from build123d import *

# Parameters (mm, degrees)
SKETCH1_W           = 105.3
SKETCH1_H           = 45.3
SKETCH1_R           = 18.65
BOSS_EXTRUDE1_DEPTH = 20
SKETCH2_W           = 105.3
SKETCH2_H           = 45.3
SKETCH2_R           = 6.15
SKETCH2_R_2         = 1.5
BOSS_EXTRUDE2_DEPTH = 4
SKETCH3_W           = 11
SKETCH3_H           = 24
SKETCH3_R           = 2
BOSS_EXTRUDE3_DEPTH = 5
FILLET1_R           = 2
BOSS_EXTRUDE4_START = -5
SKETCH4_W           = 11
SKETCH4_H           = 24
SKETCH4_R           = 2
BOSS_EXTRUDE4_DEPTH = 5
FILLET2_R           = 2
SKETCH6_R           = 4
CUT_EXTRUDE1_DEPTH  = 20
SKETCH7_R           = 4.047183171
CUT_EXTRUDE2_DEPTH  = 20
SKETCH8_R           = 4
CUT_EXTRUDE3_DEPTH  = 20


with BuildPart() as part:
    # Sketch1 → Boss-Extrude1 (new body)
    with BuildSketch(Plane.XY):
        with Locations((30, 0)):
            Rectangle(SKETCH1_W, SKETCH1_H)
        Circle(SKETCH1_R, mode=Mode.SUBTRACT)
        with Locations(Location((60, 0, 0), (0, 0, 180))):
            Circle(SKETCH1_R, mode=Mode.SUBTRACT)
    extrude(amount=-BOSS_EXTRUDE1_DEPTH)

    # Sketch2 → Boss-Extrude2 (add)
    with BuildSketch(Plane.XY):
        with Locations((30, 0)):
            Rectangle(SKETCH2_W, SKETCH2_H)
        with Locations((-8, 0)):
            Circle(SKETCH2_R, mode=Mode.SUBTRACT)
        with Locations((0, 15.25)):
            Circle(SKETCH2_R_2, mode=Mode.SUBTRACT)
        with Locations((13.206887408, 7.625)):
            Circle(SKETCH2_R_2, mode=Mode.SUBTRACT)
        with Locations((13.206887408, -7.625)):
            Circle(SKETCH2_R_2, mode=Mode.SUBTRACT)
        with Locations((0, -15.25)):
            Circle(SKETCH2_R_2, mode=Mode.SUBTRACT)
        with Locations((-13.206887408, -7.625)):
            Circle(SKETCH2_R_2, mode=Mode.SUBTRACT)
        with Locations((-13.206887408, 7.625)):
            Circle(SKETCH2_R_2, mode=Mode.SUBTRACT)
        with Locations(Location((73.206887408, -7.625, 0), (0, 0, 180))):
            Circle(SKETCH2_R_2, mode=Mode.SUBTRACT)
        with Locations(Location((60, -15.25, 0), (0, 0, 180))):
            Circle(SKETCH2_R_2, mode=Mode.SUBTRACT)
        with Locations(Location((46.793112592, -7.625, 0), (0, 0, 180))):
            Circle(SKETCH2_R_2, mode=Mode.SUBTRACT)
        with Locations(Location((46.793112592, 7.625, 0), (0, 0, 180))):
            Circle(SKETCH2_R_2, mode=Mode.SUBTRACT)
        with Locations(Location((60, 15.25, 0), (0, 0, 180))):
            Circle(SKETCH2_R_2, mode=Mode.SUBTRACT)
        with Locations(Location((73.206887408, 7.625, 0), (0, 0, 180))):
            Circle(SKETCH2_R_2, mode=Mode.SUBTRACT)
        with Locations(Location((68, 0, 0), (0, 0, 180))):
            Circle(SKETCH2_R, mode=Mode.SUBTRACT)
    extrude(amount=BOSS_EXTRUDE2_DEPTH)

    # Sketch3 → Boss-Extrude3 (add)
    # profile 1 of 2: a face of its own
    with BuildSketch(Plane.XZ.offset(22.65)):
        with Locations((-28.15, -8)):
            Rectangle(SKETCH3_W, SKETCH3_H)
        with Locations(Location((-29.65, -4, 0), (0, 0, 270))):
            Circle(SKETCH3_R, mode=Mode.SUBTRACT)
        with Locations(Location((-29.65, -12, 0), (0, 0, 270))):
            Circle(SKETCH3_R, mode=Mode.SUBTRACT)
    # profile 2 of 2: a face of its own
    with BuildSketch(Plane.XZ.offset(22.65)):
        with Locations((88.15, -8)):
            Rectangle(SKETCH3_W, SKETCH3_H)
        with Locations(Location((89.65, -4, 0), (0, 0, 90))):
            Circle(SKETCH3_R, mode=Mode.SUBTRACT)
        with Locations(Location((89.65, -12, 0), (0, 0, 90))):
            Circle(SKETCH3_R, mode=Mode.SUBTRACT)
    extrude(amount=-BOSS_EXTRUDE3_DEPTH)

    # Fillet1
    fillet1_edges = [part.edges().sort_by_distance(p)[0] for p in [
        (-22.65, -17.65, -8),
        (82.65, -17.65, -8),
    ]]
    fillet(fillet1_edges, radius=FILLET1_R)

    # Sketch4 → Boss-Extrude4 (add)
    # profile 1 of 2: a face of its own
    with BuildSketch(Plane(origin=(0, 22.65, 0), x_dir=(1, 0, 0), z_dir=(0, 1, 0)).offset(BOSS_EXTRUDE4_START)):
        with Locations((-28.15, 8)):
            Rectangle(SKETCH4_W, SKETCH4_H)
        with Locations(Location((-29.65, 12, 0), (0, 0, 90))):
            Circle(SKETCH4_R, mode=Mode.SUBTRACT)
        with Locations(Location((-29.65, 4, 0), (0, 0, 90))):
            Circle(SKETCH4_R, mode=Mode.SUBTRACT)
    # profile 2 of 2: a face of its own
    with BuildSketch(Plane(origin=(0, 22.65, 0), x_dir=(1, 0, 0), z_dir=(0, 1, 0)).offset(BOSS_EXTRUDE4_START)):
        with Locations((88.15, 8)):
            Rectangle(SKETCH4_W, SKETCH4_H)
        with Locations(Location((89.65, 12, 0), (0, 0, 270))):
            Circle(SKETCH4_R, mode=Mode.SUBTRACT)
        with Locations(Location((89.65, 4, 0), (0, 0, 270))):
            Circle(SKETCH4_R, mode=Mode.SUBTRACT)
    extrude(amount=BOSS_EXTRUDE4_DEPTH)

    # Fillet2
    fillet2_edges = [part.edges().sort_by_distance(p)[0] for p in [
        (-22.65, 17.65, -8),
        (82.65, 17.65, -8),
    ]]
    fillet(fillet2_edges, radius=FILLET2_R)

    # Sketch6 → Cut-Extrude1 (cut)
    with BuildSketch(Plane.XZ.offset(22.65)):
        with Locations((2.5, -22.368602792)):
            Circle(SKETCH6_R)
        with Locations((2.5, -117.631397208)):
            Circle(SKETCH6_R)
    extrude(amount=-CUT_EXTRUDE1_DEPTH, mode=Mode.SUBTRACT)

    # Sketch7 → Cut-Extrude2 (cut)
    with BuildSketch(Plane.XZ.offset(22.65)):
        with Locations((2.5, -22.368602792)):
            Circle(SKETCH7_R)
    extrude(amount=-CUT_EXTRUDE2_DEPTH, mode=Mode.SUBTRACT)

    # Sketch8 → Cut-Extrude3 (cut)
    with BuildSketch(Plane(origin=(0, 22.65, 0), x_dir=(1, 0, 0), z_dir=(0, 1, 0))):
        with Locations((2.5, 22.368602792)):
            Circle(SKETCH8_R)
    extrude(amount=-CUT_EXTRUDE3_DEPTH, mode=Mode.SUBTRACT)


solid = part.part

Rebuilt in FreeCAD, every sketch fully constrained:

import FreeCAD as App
import Part
import Sketcher
from FreeCAD import Vector
Q = App.Units.Quantity


def edges_at(feature, points):
    """Names of the edges that pass closest to the given points."""
    edges = feature.Shape.Edges
    near = lambda p: min(range(len(edges)), key=lambda i: edges[i].distToShape(Part.Vertex(*p))[0])
    return sorted({f"Edge{near(p) + 1}" for p in points})

doc = App.newDocument("Part")
params = doc.addObject("Spreadsheet::Sheet", "Params")
for row, (alias, value) in enumerate([
    ("sketch1_diameter", "37.3 mm"),
    ("sketch1_width", "105.3 mm"),
    ("sketch1_height", "45.3 mm"),
    ("pad1_length", "20 mm"),
    ("sketch2_diameter", "3 mm"),
    ("sketch2_diameter2", "12.3 mm"),
    ("sketch2_width", "105.3 mm"),
    ("sketch2_height", "45.3 mm"),
    ("pad2_length", "4 mm"),
    ("sketch3_diameter", "4 mm"),
    ("sketch3_width", "11 mm"),
    ("sketch3_height", "24 mm"),
    ("pad3_length", "5 mm"),
    ("fillet_radius", "2 mm"),
    ("sketch4_diameter", "4 mm"),
    ("sketch4_width", "11 mm"),
    ("sketch4_height", "24 mm"),
    ("pad4_length", "5 mm"),
    ("fillet2_radius", "2 mm"),
    ("sketch5_diameter", "8 mm"),
    ("pocket1_length", "20 mm"),
    ("pocket2_length", "20 mm"),
    ("sketch7_diameter", "8 mm"),
    ("pocket3_length", "20 mm"),
], start=1):
    params.set(f"A{row}", alias)
    params.set(f"B{row}", "=" + value)
    params.setAlias(f"B{row}", alias)

body = doc.addObject("PartDesign::Body", "Body")

sketch1 = doc.addObject("Sketcher::SketchObject", "Sketch")
body.addObject(sketch1)
sketch1.AttachmentSupport = (doc.XY_Plane, [""])
sketch1.MapMode = "FlatFace"
sketch1.addGeometry(Part.LineSegment(Vector(-22.65, 22.65, 0), Vector(-22.65, -22.65, 0)), False)
sketch1.addGeometry(Part.LineSegment(Vector(-22.65, -22.65, 0), Vector(82.65, -22.65, 0)), False)
sketch1.addGeometry(Part.LineSegment(Vector(82.65, -22.65, 0), Vector(82.65, 22.65, 0)), False)
sketch1.addGeometry(Part.LineSegment(Vector(82.65, 22.65, 0), Vector(-22.65, 22.65, 0)), False)
sketch1.addGeometry(Part.Circle(Vector(0, 0, 0), Vector(0, 0, 1), 18.65), False)
sketch1.addGeometry(Part.Circle(Vector(60, 0, 0), Vector(0, 0, 1), 18.65), False)
sketch1.addConstraint(Sketcher.Constraint("Coincident", 0, 2, 1, 1))
sketch1.addConstraint(Sketcher.Constraint("Coincident", 1, 2, 2, 1))
sketch1.addConstraint(Sketcher.Constraint("Coincident", 2, 2, 3, 1))
sketch1.addConstraint(Sketcher.Constraint("Coincident", 3, 2, 0, 1))
sketch1.addConstraint(Sketcher.Constraint("Vertical", 0))
sketch1.addConstraint(Sketcher.Constraint("Horizontal", 1))
sketch1.addConstraint(Sketcher.Constraint("Vertical", 2))
sketch1.addConstraint(Sketcher.Constraint("Horizontal", 3))
sketch1.addConstraint(Sketcher.Constraint("Coincident", 4, 3, -1, 1))
sketch1.addConstraint(Sketcher.Constraint("Equal", 4, 5))
sketch1.addConstraint(Sketcher.Constraint("PointOnObject", 5, 3, -1))
sketch1.addConstraint(Sketcher.Constraint("Diameter", 4, Q("37.3 mm")))
sketch1.addConstraint(Sketcher.Constraint("DistanceX", 1, 1, 1, 2, Q("105.3 mm")))
sketch1.addConstraint(Sketcher.Constraint("DistanceY", 0, 2, 0, 1, Q("45.3 mm")))
sketch1.addConstraint(Sketcher.Constraint("DistanceX", -1, 1, 5, 3, Q("60 mm")))
sketch1.addConstraint(Sketcher.Constraint("DistanceX", 0, 2, -1, 1, Q("22.65 mm")))
sketch1.addConstraint(Sketcher.Constraint("DistanceY", 0, 2, -1, 1, Q("22.65 mm")))
sketch1.setExpression("Constraints[11]", "Params.sketch1_diameter")
sketch1.setExpression("Constraints[12]", "Params.sketch1_width")
sketch1.setExpression("Constraints[13]", "Params.sketch1_height")
pad1 = doc.addObject("PartDesign::Pad", "Pad")
body.addObject(pad1)
pad1.Profile = sketch1
pad1.setExpression("Length", "Params.pad1_length")
pad1.Reversed = True

sketch2 = doc.addObject("Sketcher::SketchObject", "Sketch001")
body.addObject(sketch2)
sketch2.AttachmentSupport = (doc.XY_Plane, [""])
sketch2.MapMode = "FlatFace"
sketch2.addGeometry(Part.LineSegment(Vector(-22.65, 22.65, 0), Vector(-22.65, -22.65, 0)), False)
sketch2.addGeometry(Part.LineSegment(Vector(-22.65, -22.65, 0), Vector(82.65, -22.65, 0)), False)
sketch2.addGeometry(Part.LineSegment(Vector(82.65, -22.65, 0), Vector(82.65, 22.65, 0)), False)
sketch2.addGeometry(Part.LineSegment(Vector(82.65, 22.65, 0), Vector(-22.65, 22.65, 0)), False)
sketch2.addGeometry(Part.Circle(Vector(0, -15.25, 0), Vector(0, 0, 1), 1.5), False)
sketch2.addGeometry(Part.Circle(Vector(-13.206887, -7.625, 0), Vector(0, 0, 1), 1.5), False)
sketch2.addGeometry(Part.Circle(Vector(13.206887, -7.625, 0), Vector(0, 0, 1), 1.5), False)
sketch2.addGeometry(Part.Circle(Vector(60, -15.25, 0), Vector(0, 0, 1), 1.5), False)
sketch2.addGeometry(Part.Circle(Vector(46.793113, -7.625, 0), Vector(0, 0, 1), 1.5), False)
sketch2.addGeometry(Part.Circle(Vector(73.206887, -7.625, 0), Vector(0, 0, 1), 1.5), False)
sketch2.addGeometry(Part.Circle(Vector(-8, 0, 0), Vector(0, 0, 1), 6.15), False)
sketch2.addGeometry(Part.Circle(Vector(-13.206887, 7.625, 0), Vector(0, 0, 1), 1.5), False)
sketch2.addGeometry(Part.Circle(Vector(13.206887, 7.625, 0), Vector(0, 0, 1), 1.5), False)
sketch2.addGeometry(Part.Circle(Vector(0, 15.25, 0), Vector(0, 0, 1), 1.5), False)
sketch2.addGeometry(Part.Circle(Vector(46.793113, 7.625, 0), Vector(0, 0, 1), 1.5), False)
sketch2.addGeometry(Part.Circle(Vector(68, 0, 0), Vector(0, 0, 1), 6.15), False)
sketch2.addGeometry(Part.Circle(Vector(73.206887, 7.625, 0), Vector(0, 0, 1), 1.5), False)
sketch2.addGeometry(Part.Circle(Vector(60, 15.25, 0), Vector(0, 0, 1), 1.5), False)
sketch2.addConstraint(Sketcher.Constraint("Coincident", 0, 2, 1, 1))
sketch2.addConstraint(Sketcher.Constraint("Coincident", 1, 2, 2, 1))
sketch2.addConstraint(Sketcher.Constraint("Coincident", 2, 2, 3, 1))
sketch2.addConstraint(Sketcher.Constraint("Coincident", 3, 2, 0, 1))
sketch2.addConstraint(Sketcher.Constraint("Vertical", 0))
sketch2.addConstraint(Sketcher.Constraint("Horizontal", 1))
sketch2.addConstraint(Sketcher.Constraint("Vertical", 2))
sketch2.addConstraint(Sketcher.Constraint("Horizontal", 3))
sketch2.addConstraint(Sketcher.Constraint("Equal", 4, 5))
sketch2.addConstraint(Sketcher.Constraint("Equal", 5, 6))
sketch2.addConstraint(Sketcher.Constraint("Equal", 6, 7))
sketch2.addConstraint(Sketcher.Constraint("Equal", 7, 8))
sketch2.addConstraint(Sketcher.Constraint("Equal", 8, 9))
sketch2.addConstraint(Sketcher.Constraint("Equal", 9, 11))
sketch2.addConstraint(Sketcher.Constraint("Equal", 11, 12))
sketch2.addConstraint(Sketcher.Constraint("Equal", 12, 13))
sketch2.addConstraint(Sketcher.Constraint("Equal", 13, 14))
sketch2.addConstraint(Sketcher.Constraint("Equal", 10, 15))
sketch2.addConstraint(Sketcher.Constraint("Equal", 14, 16))
sketch2.addConstraint(Sketcher.Constraint("Equal", 16, 17))
sketch2.addConstraint(Sketcher.Constraint("Symmetric", 6, 3, 11, 3, -1, 1))
sketch2.addConstraint(Sketcher.Constraint("Symmetric", 5, 3, 12, 3, -1, 1))
sketch2.addConstraint(Sketcher.Constraint("Symmetric", 4, 3, 13, 3, -1, 1))
sketch2.addConstraint(Sketcher.Constraint("Symmetric", 5, 3, 6, 3, -2))
sketch2.addConstraint(Sketcher.Constraint("Symmetric", 8, 3, 14, 3, -1))
sketch2.addConstraint(Sketcher.Constraint("Symmetric", 9, 3, 16, 3, -1))
sketch2.addConstraint(Sketcher.Constraint("Symmetric", 7, 3, 17, 3, -1))
sketch2.addConstraint(Sketcher.Constraint("PointOnObject", 4, 3, -2))
sketch2.addConstraint(Sketcher.Constraint("PointOnObject", 10, 3, -1))
sketch2.addConstraint(Sketcher.Constraint("PointOnObject", 15, 3, -1))
sketch2.addConstraint(Sketcher.Constraint("Horizontal", 4, 3, 7, 3))
sketch2.addConstraint(Sketcher.Constraint("Horizontal", 6, 3, 8, 3))
sketch2.addConstraint(Sketcher.Constraint("Horizontal", 8, 3, 9, 3))
sketch2.addConstraint(Sketcher.Constraint("Diameter", 4, Q("3 mm")))
sketch2.addConstraint(Sketcher.Constraint("Diameter", 10, Q("12.3 mm")))
sketch2.addConstraint(Sketcher.Constraint("DistanceX", 1, 1, 1, 2, Q("105.3 mm")))
sketch2.addConstraint(Sketcher.Constraint("DistanceY", 0, 2, 0, 1, Q("45.3 mm")))
sketch2.addConstraint(Sketcher.Constraint("DistanceX", -1, 1, 7, 3, Q("60 mm")))
sketch2.addConstraint(Sketcher.Constraint("DistanceX", 10, 3, -1, 1, Q("8 mm")))
sketch2.addConstraint(Sketcher.Constraint("DistanceX", -1, 1, 15, 3, Q("68 mm")))
sketch2.addConstraint(Sketcher.Constraint("DistanceX", 5, 3, 8, 3, Q("60 mm")))
sketch2.addConstraint(Sketcher.Constraint("DistanceX", 6, 3, 9, 3, Q("60 mm")))
sketch2.addConstraint(Sketcher.Constraint("DistanceY", 0, 2, 4, 3, Q("7.4 mm")))
sketch2.addConstraint(Sketcher.Constraint("DistanceY", 17, 3, 2, 2, Q("7.4 mm")))
sketch2.addConstraint(Sketcher.Constraint("DistanceX", 0, 2, -1, 1, Q("22.65 mm")))
sketch2.addConstraint(Sketcher.Constraint("DistanceY", 5, 3, 11, 3, Q("15.25 mm")))
sketch2.addConstraint(Sketcher.Constraint("DistanceX", 5, 3, -1, 1, Q("13.206887 mm")))
sketch2.setExpression("Constraints[33]", "Params.sketch2_diameter")
sketch2.setExpression("Constraints[34]", "Params.sketch2_diameter2")
sketch2.setExpression("Constraints[35]", "Params.sketch2_width")
sketch2.setExpression("Constraints[36]", "Params.sketch2_height")
pad2 = doc.addObject("PartDesign::Pad", "Pad001")
body.addObject(pad2)
pad2.Profile = sketch2
pad2.setExpression("Length", "Params.pad2_length")

sketch3 = doc.addObject("Sketcher::SketchObject", "Sketch002")
body.addObject(sketch3)
sketch3.AttachmentSupport = (doc.XZ_Plane, [""])
sketch3.MapMode = "FlatFace"
sketch3.AttachmentOffset = App.Placement(Vector(0, 0, 22.65), App.Rotation())
sketch3.addGeometry(Part.LineSegment(Vector(-33.65, 4, 0), Vector(-33.65, -20, 0)), False)
sketch3.addGeometry(Part.LineSegment(Vector(-33.65, -20, 0), Vector(-22.65, -20, 0)), False)
sketch3.addGeometry(Part.LineSegment(Vector(-22.65, -20, 0), Vector(-22.65, 4, 0)), False)
sketch3.addGeometry(Part.LineSegment(Vector(-22.65, 4, 0), Vector(-33.65, 4, 0)), False)
sketch3.addGeometry(Part.Circle(Vector(-29.65, -12, 0), Vector(0, 0, 1), 2), False)
sketch3.addGeometry(Part.Circle(Vector(-29.65, -4, 0), Vector(0, 0, 1), 2), False)
sketch3.addGeometry(Part.LineSegment(Vector(82.65, 4, 0), Vector(82.65, -20, 0)), False)
sketch3.addGeometry(Part.LineSegment(Vector(82.65, -20, 0), Vector(93.65, -20, 0)), False)
sketch3.addGeometry(Part.LineSegment(Vector(93.65, -20, 0), Vector(93.65, 4, 0)), False)
sketch3.addGeometry(Part.LineSegment(Vector(93.65, 4, 0), Vector(82.65, 4, 0)), False)
sketch3.addGeometry(Part.Circle(Vector(89.65, -12, 0), Vector(0, 0, 1), 2), False)
sketch3.addGeometry(Part.Circle(Vector(89.65, -4, 0), Vector(0, 0, 1), 2), False)
sketch3.addConstraint(Sketcher.Constraint("Coincident", 0, 2, 1, 1))
sketch3.addConstraint(Sketcher.Constraint("Coincident", 1, 2, 2, 1))
sketch3.addConstraint(Sketcher.Constraint("Coincident", 2, 2, 3, 1))
sketch3.addConstraint(Sketcher.Constraint("Coincident", 3, 2, 0, 1))
sketch3.addConstraint(Sketcher.Constraint("Coincident", 6, 2, 7, 1))
sketch3.addConstraint(Sketcher.Constraint("Coincident", 7, 2, 8, 1))
sketch3.addConstraint(Sketcher.Constraint("Coincident", 8, 2, 9, 1))
sketch3.addConstraint(Sketcher.Constraint("Coincident", 9, 2, 6, 1))
sketch3.addConstraint(Sketcher.Constraint("Vertical", 0))
sketch3.addConstraint(Sketcher.Constraint("Horizontal", 1))
sketch3.addConstraint(Sketcher.Constraint("Vertical", 2))
sketch3.addConstraint(Sketcher.Constraint("Horizontal", 3))
sketch3.addConstraint(Sketcher.Constraint("Vertical", 6))
sketch3.addConstraint(Sketcher.Constraint("Horizontal", 7))
sketch3.addConstraint(Sketcher.Constraint("Vertical", 8))
sketch3.addConstraint(Sketcher.Constraint("Horizontal", 9))
sketch3.addConstraint(Sketcher.Constraint("Equal", 4, 5))
sketch3.addConstraint(Sketcher.Constraint("Equal", 5, 10))
sketch3.addConstraint(Sketcher.Constraint("Equal", 10, 11))
sketch3.addConstraint(Sketcher.Constraint("Horizontal", 4, 3, 10, 3))
sketch3.addConstraint(Sketcher.Constraint("Horizontal", 5, 3, 11, 3))
sketch3.addConstraint(Sketcher.Constraint("Horizontal", 1, 2, 6, 2))
sketch3.addConstraint(Sketcher.Constraint("Horizontal", 3, 2, 8, 2))
sketch3.addConstraint(Sketcher.Constraint("Vertical", 4, 3, 5, 3))
sketch3.addConstraint(Sketcher.Constraint("Vertical", 10, 3, 11, 3))
sketch3.addConstraint(Sketcher.Constraint("Equal", 3, 7))
sketch3.addConstraint(Sketcher.Constraint("Diameter", 4, Q("4 mm")))
sketch3.addConstraint(Sketcher.Constraint("DistanceX", 1, 1, 1, 2, Q("11 mm")))
sketch3.addConstraint(Sketcher.Constraint("DistanceY", 0, 2, 0, 1, Q("24 mm")))
sketch3.addConstraint(Sketcher.Constraint("DistanceY", 4, 3, -1, 1, Q("12 mm")))
sketch3.addConstraint(Sketcher.Constraint("DistanceY", 5, 3, -1, 1, Q("4 mm")))
sketch3.addConstraint(Sketcher.Constraint("DistanceY", 0, 2, -1, 1, Q("20 mm")))
sketch3.addConstraint(Sketcher.Constraint("DistanceX", 0, 2, 4, 3, Q("4 mm")))
sketch3.addConstraint(Sketcher.Constraint("DistanceX", 6, 2, 10, 3, Q("7 mm")))
sketch3.addConstraint(Sketcher.Constraint("DistanceX", 4, 3, 10, 3, Q("119.3 mm")))
sketch3.addConstraint(Sketcher.Constraint("DistanceX", 4, 3, -1, 1, Q("29.65 mm")))
sketch3.setExpression("Constraints[26]", "Params.sketch3_diameter")
sketch3.setExpression("Constraints[27]", "Params.sketch3_width")
sketch3.setExpression("Constraints[28]", "Params.sketch3_height")
pad3 = doc.addObject("PartDesign::Pad", "Pad002")
body.addObject(pad3)
pad3.Profile = sketch3
pad3.setExpression("Length", "Params.pad3_length")
pad3.Reversed = True
doc.recompute()

fillet = doc.addObject("PartDesign::Fillet", "Fillet")
body.addObject(fillet)
fillet.Base = (pad3, edges_at(pad3, [(-22.65, -17.65, -8), (82.65, -17.65, -8)]))
fillet.setExpression("Radius", "Params.fillet_radius")

sketch4 = doc.addObject("Sketcher::SketchObject", "Sketch003")
body.addObject(sketch4)
sketch4.AttachmentSupport = (doc.XZ_Plane, [""])
sketch4.MapMode = "FlatFace"
sketch4.AttachmentOffset = App.Placement(Vector(0, 0, -17.65), App.Rotation())
sketch4.addGeometry(Part.LineSegment(Vector(-33.65, -20, 0), Vector(-33.65, 4, 0)), False)
sketch4.addGeometry(Part.LineSegment(Vector(-33.65, 4, 0), Vector(-22.65, 4, 0)), False)
sketch4.addGeometry(Part.LineSegment(Vector(-22.65, 4, 0), Vector(-22.65, -20, 0)), False)
sketch4.addGeometry(Part.LineSegment(Vector(-22.65, -20, 0), Vector(-33.65, -20, 0)), False)
sketch4.addGeometry(Part.Circle(Vector(-29.65, -4, 0), Vector(0, 0, 1), 2), False)
sketch4.addGeometry(Part.Circle(Vector(-29.65, -12, 0), Vector(0, 0, 1), 2), False)
sketch4.addGeometry(Part.LineSegment(Vector(82.65, -20, 0), Vector(82.65, 4, 0)), False)
sketch4.addGeometry(Part.LineSegment(Vector(82.65, 4, 0), Vector(93.65, 4, 0)), False)
sketch4.addGeometry(Part.LineSegment(Vector(93.65, 4, 0), Vector(93.65, -20, 0)), False)
sketch4.addGeometry(Part.LineSegment(Vector(93.65, -20, 0), Vector(82.65, -20, 0)), False)
sketch4.addGeometry(Part.Circle(Vector(89.65, -4, 0), Vector(0, 0, 1), 2), False)
sketch4.addGeometry(Part.Circle(Vector(89.65, -12, 0), Vector(0, 0, 1), 2), False)
sketch4.addConstraint(Sketcher.Constraint("Coincident", 0, 2, 1, 1))
sketch4.addConstraint(Sketcher.Constraint("Coincident", 1, 2, 2, 1))
sketch4.addConstraint(Sketcher.Constraint("Coincident", 2, 2, 3, 1))
sketch4.addConstraint(Sketcher.Constraint("Coincident", 3, 2, 0, 1))
sketch4.addConstraint(Sketcher.Constraint("Coincident", 6, 2, 7, 1))
sketch4.addConstraint(Sketcher.Constraint("Coincident", 7, 2, 8, 1))
sketch4.addConstraint(Sketcher.Constraint("Coincident", 8, 2, 9, 1))
sketch4.addConstraint(Sketcher.Constraint("Coincident", 9, 2, 6, 1))
sketch4.addConstraint(Sketcher.Constraint("Vertical", 0))
sketch4.addConstraint(Sketcher.Constraint("Horizontal", 1))
sketch4.addConstraint(Sketcher.Constraint("Vertical", 2))
sketch4.addConstraint(Sketcher.Constraint("Horizontal", 3))
sketch4.addConstraint(Sketcher.Constraint("Vertical", 6))
sketch4.addConstraint(Sketcher.Constraint("Horizontal", 7))
sketch4.addConstraint(Sketcher.Constraint("Vertical", 8))
sketch4.addConstraint(Sketcher.Constraint("Horizontal", 9))
sketch4.addConstraint(Sketcher.Constraint("Equal", 4, 5))
sketch4.addConstraint(Sketcher.Constraint("Equal", 5, 10))
sketch4.addConstraint(Sketcher.Constraint("Equal", 10, 11))
sketch4.addConstraint(Sketcher.Constraint("Horizontal", 4, 3, 10, 3))
sketch4.addConstraint(Sketcher.Constraint("Horizontal", 5, 3, 11, 3))
sketch4.addConstraint(Sketcher.Constraint("Horizontal", 1, 2, 6, 2))
sketch4.addConstraint(Sketcher.Constraint("Horizontal", 3, 2, 8, 2))
sketch4.addConstraint(Sketcher.Constraint("Vertical", 4, 3, 5, 3))
sketch4.addConstraint(Sketcher.Constraint("Vertical", 10, 3, 11, 3))
sketch4.addConstraint(Sketcher.Constraint("Equal", 3, 7))
sketch4.addConstraint(Sketcher.Constraint("Diameter", 4, Q("4 mm")))
sketch4.addConstraint(Sketcher.Constraint("DistanceX", 1, 1, 1, 2, Q("11 mm")))
sketch4.addConstraint(Sketcher.Constraint("DistanceY", 0, 1, 0, 2, Q("24 mm")))
sketch4.addConstraint(Sketcher.Constraint("DistanceY", 4, 3, -1, 1, Q("4 mm")))
sketch4.addConstraint(Sketcher.Constraint("DistanceY", 5, 3, -1, 1, Q("12 mm")))
sketch4.addConstraint(Sketcher.Constraint("DistanceY", -1, 1, 0, 2, Q("4 mm")))
sketch4.addConstraint(Sketcher.Constraint("DistanceX", 0, 2, 4, 3, Q("4 mm")))
sketch4.addConstraint(Sketcher.Constraint("DistanceX", 6, 2, 10, 3, Q("7 mm")))
sketch4.addConstraint(Sketcher.Constraint("DistanceX", 4, 3, 10, 3, Q("119.3 mm")))
sketch4.addConstraint(Sketcher.Constraint("DistanceX", 4, 3, -1, 1, Q("29.65 mm")))
sketch4.setExpression("Constraints[26]", "Params.sketch4_diameter")
sketch4.setExpression("Constraints[27]", "Params.sketch4_width")
sketch4.setExpression("Constraints[28]", "Params.sketch4_height")
pad4 = doc.addObject("PartDesign::Pad", "Pad003")
body.addObject(pad4)
pad4.Profile = sketch4
pad4.setExpression("Length", "Params.pad4_length")
pad4.Reversed = True
doc.recompute()

fillet2 = doc.addObject("PartDesign::Fillet", "Fillet001")
body.addObject(fillet2)
fillet2.Base = (pad4, edges_at(pad4, [(-22.65, 17.65, -8), (82.65, 17.65, -8)]))
fillet2.setExpression("Radius", "Params.fillet2_radius")

sketch5 = doc.addObject("Sketcher::SketchObject", "Sketch004")
body.addObject(sketch5)
sketch5.AttachmentSupport = (doc.XZ_Plane, [""])
sketch5.MapMode = "FlatFace"
sketch5.AttachmentOffset = App.Placement(Vector(0, 0, 22.65), App.Rotation())
sketch5.addGeometry(Part.Circle(Vector(2.5, -22.368603, 0), Vector(0, 0, 1), 4), False)
sketch5.addGeometry(Part.Circle(Vector(2.5, -117.631397, 0), Vector(0, 0, 1), 4), False)
sketch5.addConstraint(Sketcher.Constraint("Equal", 0, 1))
sketch5.addConstraint(Sketcher.Constraint("Vertical", 0, 3, 1, 3))
sketch5.addConstraint(Sketcher.Constraint("Diameter", 0, Q("8 mm")))
sketch5.addConstraint(Sketcher.Constraint("DistanceX", -1, 1, 0, 3, Q("2.5 mm")))
sketch5.addConstraint(Sketcher.Constraint("DistanceY", 0, 3, -1, 1, Q("22.368603 mm")))
sketch5.addConstraint(Sketcher.Constraint("DistanceY", 1, 3, -1, 1, Q("117.631397 mm")))
sketch5.setExpression("Constraints[2]", "Params.sketch5_diameter")
pocket1 = doc.addObject("PartDesign::Pocket", "Pocket")
body.addObject(pocket1)
pocket1.Profile = sketch5
pocket1.setExpression("Length", "Params.pocket1_length")

sketch6 = doc.addObject("Sketcher::SketchObject", "Sketch005")
body.addObject(sketch6)
sketch6.AttachmentSupport = (doc.XZ_Plane, [""])
sketch6.MapMode = "FlatFace"
sketch6.AttachmentOffset = App.Placement(Vector(0, 0, 22.65), App.Rotation())
sketch6.addGeometry(Part.Circle(Vector(2.5, -22.368603, 0), Vector(0, 0, 1), 4.047183), False)
sketch6.addConstraint(Sketcher.Constraint("DistanceX", -1, 1, 0, 3, Q("2.5 mm")))
sketch6.addConstraint(Sketcher.Constraint("Diameter", 0, Q("8.094366 mm")))
sketch6.addConstraint(Sketcher.Constraint("DistanceY", 0, 3, -1, 1, Q("22.368603 mm")))
pocket2 = doc.addObject("PartDesign::Pocket", "Pocket001")
body.addObject(pocket2)
pocket2.Profile = sketch6
pocket2.setExpression("Length", "Params.pocket2_length")

sketch7 = doc.addObject("Sketcher::SketchObject", "Sketch006")
body.addObject(sketch7)
sketch7.AttachmentSupport = (doc.XZ_Plane, [""])
sketch7.MapMode = "FlatFace"
sketch7.AttachmentOffset = App.Placement(Vector(0, 0, -22.65), App.Rotation())
sketch7.addGeometry(Part.Circle(Vector(2.5, -22.368603, 0), Vector(0, 0, 1), 4), False)
sketch7.addConstraint(Sketcher.Constraint("Diameter", 0, Q("8 mm")))
sketch7.addConstraint(Sketcher.Constraint("DistanceX", -1, 1, 0, 3, Q("2.5 mm")))
sketch7.addConstraint(Sketcher.Constraint("DistanceY", 0, 3, -1, 1, Q("22.368603 mm")))
sketch7.setExpression("Constraints[0]", "Params.sketch7_diameter")
pocket3 = doc.addObject("PartDesign::Pocket", "Pocket002")
body.addObject(pocket3)
pocket3.Profile = sketch7
pocket3.setExpression("Length", "Params.pocket3_length")
pocket3.Reversed = True

doc.recompute()
